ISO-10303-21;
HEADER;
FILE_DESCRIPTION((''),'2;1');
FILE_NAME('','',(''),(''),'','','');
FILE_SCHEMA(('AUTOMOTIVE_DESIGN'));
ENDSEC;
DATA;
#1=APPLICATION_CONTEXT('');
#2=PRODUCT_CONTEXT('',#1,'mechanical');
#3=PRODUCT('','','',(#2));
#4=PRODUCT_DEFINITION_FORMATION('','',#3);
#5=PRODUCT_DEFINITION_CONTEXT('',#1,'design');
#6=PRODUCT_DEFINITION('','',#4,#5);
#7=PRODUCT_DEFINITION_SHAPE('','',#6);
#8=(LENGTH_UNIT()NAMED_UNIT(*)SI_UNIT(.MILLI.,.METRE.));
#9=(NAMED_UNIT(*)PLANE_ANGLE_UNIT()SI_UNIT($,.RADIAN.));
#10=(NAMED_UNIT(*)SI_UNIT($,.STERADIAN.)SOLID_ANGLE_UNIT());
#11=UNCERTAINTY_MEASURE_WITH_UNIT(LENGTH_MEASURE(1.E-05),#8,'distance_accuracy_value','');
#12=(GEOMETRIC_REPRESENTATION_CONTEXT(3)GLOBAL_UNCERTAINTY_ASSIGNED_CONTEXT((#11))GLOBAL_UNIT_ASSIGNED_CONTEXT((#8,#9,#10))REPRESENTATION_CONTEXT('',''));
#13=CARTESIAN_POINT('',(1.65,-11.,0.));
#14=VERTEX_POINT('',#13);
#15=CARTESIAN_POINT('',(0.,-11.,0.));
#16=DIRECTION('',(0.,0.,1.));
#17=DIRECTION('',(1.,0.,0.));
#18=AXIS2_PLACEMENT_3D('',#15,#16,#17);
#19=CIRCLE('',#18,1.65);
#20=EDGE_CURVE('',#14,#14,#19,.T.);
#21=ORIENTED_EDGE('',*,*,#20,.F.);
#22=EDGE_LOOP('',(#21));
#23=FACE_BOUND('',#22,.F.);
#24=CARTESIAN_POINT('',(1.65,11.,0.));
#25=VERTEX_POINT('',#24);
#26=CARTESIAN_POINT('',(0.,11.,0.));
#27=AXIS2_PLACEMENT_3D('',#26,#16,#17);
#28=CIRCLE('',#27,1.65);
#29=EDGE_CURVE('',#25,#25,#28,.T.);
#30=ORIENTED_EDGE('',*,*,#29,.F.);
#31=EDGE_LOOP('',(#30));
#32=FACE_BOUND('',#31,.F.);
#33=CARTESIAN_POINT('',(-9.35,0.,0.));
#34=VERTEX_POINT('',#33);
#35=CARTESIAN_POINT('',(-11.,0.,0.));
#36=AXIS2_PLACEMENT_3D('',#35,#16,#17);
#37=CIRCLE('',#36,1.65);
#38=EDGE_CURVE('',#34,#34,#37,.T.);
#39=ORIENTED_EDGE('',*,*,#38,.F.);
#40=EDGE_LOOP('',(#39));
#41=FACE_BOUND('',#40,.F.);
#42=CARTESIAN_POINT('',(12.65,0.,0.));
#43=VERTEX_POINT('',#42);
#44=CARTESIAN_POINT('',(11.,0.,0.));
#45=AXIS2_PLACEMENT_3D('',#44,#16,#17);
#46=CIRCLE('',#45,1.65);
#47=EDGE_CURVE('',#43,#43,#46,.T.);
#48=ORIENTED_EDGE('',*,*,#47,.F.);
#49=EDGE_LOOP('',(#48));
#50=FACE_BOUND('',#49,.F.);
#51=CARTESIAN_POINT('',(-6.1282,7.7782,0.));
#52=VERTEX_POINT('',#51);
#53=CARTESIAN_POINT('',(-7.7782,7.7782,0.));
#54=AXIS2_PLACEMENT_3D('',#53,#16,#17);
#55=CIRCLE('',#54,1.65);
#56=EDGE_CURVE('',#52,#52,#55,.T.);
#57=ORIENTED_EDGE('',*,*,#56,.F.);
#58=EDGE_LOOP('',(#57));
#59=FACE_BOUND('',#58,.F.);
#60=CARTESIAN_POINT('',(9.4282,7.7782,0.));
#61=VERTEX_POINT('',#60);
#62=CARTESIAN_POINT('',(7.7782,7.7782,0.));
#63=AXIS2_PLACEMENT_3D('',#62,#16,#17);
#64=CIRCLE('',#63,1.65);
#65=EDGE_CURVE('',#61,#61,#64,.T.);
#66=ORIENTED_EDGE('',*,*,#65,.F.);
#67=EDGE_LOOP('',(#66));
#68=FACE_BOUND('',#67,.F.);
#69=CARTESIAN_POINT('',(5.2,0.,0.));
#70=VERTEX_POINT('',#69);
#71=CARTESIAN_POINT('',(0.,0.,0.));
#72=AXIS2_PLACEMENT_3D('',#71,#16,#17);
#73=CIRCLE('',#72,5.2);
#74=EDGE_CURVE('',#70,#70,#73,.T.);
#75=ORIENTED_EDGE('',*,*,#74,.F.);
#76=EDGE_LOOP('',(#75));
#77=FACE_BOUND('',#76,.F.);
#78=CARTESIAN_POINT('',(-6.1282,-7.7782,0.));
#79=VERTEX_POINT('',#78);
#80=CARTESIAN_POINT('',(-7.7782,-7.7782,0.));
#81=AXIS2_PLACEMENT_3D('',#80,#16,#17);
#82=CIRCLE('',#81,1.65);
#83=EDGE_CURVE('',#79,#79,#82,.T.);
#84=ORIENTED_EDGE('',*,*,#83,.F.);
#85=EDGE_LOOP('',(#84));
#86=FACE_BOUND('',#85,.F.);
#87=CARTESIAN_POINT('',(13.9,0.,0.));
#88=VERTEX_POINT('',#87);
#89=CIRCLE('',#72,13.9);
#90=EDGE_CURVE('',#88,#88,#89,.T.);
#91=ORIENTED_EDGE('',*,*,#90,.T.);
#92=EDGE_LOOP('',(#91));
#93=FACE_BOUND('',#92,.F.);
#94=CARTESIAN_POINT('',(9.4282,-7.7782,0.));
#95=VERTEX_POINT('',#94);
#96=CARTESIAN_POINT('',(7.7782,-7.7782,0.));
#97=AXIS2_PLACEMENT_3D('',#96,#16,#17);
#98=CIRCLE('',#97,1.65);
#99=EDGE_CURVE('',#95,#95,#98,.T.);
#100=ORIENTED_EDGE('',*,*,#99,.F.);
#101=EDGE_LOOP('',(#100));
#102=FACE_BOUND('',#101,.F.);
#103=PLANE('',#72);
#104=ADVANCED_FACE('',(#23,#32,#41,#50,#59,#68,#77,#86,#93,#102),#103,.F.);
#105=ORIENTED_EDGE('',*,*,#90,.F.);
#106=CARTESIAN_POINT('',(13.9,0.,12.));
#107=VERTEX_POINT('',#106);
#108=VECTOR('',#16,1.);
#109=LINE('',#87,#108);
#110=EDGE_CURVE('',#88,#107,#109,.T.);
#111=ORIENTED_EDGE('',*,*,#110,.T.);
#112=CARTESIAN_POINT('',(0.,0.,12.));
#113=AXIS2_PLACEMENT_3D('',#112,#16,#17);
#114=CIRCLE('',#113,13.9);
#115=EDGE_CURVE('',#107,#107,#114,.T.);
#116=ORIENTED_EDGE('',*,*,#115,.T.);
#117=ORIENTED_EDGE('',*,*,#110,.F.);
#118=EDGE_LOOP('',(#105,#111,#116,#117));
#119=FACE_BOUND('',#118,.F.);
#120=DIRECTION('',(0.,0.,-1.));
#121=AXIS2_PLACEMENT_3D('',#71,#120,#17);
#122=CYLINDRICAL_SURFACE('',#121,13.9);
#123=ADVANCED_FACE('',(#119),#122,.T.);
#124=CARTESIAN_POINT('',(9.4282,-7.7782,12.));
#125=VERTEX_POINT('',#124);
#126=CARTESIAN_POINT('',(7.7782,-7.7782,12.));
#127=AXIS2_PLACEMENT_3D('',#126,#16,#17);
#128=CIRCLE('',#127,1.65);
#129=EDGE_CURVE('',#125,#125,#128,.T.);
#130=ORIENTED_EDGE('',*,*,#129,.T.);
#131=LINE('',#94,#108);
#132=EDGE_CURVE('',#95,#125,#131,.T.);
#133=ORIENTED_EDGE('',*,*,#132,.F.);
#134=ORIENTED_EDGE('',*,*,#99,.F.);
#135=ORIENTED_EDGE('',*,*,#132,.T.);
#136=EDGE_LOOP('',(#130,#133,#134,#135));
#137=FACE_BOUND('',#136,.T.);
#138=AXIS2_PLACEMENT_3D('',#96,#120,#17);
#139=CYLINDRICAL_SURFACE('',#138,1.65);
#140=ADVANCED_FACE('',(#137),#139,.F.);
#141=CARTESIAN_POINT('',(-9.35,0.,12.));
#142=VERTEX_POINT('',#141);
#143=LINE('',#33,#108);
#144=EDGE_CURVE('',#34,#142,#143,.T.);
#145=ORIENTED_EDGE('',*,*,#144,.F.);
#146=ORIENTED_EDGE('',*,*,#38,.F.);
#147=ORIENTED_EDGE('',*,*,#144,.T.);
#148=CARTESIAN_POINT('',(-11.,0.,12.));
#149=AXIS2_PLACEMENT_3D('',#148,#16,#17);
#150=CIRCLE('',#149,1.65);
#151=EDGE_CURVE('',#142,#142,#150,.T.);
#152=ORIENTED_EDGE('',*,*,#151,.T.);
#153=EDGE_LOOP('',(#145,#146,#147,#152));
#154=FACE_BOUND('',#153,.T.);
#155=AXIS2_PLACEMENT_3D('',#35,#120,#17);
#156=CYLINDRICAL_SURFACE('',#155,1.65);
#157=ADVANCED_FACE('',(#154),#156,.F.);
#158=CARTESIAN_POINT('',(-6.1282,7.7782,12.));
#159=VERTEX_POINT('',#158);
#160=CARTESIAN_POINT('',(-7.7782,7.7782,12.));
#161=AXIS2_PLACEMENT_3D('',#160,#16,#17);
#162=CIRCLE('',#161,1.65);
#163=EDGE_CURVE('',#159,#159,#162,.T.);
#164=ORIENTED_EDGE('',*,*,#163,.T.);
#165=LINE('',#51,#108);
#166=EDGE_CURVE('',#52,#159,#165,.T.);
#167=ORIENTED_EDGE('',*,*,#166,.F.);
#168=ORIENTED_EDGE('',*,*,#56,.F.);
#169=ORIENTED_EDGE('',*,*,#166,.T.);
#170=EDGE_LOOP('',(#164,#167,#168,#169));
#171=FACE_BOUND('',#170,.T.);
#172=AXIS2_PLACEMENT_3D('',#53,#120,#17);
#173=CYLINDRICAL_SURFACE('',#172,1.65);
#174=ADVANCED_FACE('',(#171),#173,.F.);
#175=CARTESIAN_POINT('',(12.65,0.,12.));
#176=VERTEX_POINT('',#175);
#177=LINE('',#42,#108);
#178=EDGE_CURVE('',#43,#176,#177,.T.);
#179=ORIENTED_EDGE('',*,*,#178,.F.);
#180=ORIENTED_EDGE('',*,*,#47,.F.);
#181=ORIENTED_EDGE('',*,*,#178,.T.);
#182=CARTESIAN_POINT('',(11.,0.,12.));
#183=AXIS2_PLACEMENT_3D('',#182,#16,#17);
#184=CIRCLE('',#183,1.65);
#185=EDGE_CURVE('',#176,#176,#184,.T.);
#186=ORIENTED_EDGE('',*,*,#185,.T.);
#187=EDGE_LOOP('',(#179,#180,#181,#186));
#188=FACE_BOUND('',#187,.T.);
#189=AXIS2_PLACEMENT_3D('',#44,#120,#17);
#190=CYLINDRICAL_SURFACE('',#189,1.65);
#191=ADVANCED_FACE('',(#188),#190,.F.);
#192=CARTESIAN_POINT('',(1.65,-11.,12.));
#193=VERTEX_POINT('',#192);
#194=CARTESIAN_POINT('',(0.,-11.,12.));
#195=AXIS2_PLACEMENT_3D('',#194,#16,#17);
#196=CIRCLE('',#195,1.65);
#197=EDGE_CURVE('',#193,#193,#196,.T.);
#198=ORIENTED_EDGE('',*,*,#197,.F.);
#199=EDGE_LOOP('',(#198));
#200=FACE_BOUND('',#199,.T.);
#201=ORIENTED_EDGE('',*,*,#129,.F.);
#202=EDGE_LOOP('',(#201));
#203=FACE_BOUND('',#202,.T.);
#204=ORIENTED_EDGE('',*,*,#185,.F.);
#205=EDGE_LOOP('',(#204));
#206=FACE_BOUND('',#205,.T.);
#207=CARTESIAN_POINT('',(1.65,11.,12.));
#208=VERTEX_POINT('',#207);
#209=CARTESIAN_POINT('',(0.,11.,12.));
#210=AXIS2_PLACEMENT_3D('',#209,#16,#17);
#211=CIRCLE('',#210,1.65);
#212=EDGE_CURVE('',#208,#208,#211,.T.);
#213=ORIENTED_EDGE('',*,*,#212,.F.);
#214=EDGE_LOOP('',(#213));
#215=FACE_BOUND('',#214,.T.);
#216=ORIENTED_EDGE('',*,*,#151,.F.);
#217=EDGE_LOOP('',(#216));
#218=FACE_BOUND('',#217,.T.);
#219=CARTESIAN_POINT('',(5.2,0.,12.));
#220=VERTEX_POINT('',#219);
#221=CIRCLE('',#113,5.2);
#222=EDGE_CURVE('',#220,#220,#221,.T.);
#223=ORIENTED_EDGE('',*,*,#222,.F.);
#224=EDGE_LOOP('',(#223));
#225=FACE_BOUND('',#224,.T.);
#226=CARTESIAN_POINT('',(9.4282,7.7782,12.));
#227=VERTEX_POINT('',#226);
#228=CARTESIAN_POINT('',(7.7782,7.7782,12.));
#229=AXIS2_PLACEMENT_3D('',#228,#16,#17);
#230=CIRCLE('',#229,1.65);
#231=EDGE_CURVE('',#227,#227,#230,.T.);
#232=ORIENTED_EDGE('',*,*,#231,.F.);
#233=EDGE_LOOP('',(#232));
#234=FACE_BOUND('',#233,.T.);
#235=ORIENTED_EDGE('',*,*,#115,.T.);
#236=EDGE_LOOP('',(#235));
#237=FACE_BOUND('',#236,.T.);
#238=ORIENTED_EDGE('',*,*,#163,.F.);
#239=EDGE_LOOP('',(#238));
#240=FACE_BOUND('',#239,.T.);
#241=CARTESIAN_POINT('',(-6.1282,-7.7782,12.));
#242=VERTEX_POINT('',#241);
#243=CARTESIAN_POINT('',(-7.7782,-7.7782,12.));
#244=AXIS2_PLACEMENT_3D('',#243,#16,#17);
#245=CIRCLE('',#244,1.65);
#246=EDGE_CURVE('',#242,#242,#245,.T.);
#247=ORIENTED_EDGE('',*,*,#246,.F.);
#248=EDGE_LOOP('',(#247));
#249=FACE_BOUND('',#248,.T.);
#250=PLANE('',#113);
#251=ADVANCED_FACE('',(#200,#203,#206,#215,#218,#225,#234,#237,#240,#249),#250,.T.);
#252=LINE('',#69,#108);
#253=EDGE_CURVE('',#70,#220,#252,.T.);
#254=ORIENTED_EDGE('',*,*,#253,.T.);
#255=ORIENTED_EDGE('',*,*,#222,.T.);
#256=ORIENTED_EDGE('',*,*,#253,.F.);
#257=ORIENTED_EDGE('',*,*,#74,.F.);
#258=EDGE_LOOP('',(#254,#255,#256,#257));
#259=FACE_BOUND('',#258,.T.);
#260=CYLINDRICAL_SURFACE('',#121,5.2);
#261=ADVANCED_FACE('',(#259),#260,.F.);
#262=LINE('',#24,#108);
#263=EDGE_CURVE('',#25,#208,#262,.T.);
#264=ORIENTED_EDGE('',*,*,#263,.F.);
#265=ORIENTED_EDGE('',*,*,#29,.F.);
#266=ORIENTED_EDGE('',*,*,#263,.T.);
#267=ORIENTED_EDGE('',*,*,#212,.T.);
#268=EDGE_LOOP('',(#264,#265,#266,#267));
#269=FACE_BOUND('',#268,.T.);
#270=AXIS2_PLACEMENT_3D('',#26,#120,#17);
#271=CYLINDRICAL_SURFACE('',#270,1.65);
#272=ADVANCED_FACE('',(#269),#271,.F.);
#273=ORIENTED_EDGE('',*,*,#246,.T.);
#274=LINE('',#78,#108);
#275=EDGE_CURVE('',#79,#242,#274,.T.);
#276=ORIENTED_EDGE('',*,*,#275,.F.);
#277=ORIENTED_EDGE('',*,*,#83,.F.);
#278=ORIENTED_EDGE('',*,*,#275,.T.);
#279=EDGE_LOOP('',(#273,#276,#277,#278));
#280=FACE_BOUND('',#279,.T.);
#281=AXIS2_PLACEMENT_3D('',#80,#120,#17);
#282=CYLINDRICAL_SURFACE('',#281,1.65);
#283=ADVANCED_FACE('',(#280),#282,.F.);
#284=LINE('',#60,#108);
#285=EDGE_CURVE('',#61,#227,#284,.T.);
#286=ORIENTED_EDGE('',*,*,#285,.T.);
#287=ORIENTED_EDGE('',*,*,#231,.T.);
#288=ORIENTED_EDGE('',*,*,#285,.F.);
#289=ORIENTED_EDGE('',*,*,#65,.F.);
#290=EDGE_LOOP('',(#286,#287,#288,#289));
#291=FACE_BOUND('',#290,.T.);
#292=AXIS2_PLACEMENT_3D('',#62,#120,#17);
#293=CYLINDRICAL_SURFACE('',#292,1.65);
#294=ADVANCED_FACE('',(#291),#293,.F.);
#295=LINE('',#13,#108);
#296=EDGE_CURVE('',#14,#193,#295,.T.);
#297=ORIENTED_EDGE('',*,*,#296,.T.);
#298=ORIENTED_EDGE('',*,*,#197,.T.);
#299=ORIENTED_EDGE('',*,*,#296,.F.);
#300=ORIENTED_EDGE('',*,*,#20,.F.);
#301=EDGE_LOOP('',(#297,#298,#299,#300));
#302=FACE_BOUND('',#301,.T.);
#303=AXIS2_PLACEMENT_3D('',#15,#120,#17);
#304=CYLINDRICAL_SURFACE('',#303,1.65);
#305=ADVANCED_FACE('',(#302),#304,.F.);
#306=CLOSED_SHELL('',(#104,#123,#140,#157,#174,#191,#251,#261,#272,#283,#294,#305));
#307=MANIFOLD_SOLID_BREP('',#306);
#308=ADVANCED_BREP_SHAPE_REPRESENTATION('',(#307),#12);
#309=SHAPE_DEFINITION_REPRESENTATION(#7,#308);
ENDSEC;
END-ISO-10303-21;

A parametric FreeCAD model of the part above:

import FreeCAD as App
import Part
import Sketcher
from FreeCAD import Vector
Q = App.Units.Quantity

doc = App.newDocument("Part")
body = doc.addObject("PartDesign::Body", "Body")

sketch1 = doc.addObject("Sketcher::SketchObject", "Sketch")
body.addObject(sketch1)
sketch1.AttachmentSupport = (doc.XY_Plane, [""])
sketch1.MapMode = "FlatFace"
sketch1.addGeometry([
    Part.Circle(Vector(0, 0, 0), Vector(0, 0, 1), 13.9),
    Part.Circle(Vector(-7.8, -7.8, 0), Vector(0, 0, 1), 1.6),
    Part.Circle(Vector(0, -11, 0), Vector(0, 0, 1), 1.6),
    Part.Circle(Vector(7.8, -7.8, 0), Vector(0, 0, 1), 1.6),
    Part.Circle(Vector(-11, 0, 0), Vector(0, 0, 1), 1.6),
    Part.Circle(Vector(-7.8, 7.8, 0), Vector(0, 0, 1), 1.6),
    Part.Circle(Vector(0, 0, 0), Vector(0, 0, 1), 5.2),
    Part.Circle(Vector(11, 0, 0), Vector(0, 0, 1), 1.6),
    Part.Circle(Vector(0, 11, 0), Vector(0, 0, 1), 1.6),
    Part.Circle(Vector(7.8, 7.8, 0), Vector(0, 0, 1), 1.6),
], False)
sketch1.addConstraint([
    Sketcher.Constraint("Coincident", 0, 3, -1, 1),
    Sketcher.Constraint("Coincident", 6, 3, -1, 1),
    Sketcher.Constraint("Equal", 1, 2),
    Sketcher.Constraint("Equal", 2, 3),
    Sketcher.Constraint("Equal", 3, 4),
    Sketcher.Constraint("Equal", 4, 5),
    Sketcher.Constraint("Equal", 5, 7),
    Sketcher.Constraint("Equal", 7, 8),
    Sketcher.Constraint("Equal", 8, 9),
    Sketcher.Constraint("Symmetric", 3, 3, 5, 3, -1, 1),
    Sketcher.Constraint("Symmetric", 4, 3, 7, 3, -1, 1),
    Sketcher.Constraint("Symmetric", 2, 3, 8, 3, -1, 1),
    Sketcher.Constraint("Symmetric", 1, 3, 9, 3, -1, 1),
    Sketcher.Constraint("Symmetric", 1, 3, 3, 3, -2),
    Sketcher.Constraint("PointOnObject", 2, 3, -2),
    Sketcher.Constraint("PointOnObject", 4, 3, -1),
    Sketcher.Constraint("Diameter", 0, Q("27.8 mm")),
    Sketcher.Constraint("Diameter", 1, Q("3.3 mm")),
    Sketcher.Constraint("Diameter", 6, Q("10.4 mm")),
    Sketcher.Constraint("DistanceY", 2, 3, -1, 1, Q("11 mm")),
    Sketcher.Constraint("DistanceX", 4, 3, -1, 1, Q("11 mm")),
    Sketcher.Constraint("DistanceX", 1, 3, -1, 1, Q("7.7782 mm")),
    Sketcher.Constraint("DistanceY", 1, 3, -1, 1, Q("7.7782 mm")),
])
pad1 = doc.addObject("PartDesign::Pad", "Pad")
body.addObject(pad1)
pad1.Profile = sketch1
pad1.Length = 12

doc.recompute()
